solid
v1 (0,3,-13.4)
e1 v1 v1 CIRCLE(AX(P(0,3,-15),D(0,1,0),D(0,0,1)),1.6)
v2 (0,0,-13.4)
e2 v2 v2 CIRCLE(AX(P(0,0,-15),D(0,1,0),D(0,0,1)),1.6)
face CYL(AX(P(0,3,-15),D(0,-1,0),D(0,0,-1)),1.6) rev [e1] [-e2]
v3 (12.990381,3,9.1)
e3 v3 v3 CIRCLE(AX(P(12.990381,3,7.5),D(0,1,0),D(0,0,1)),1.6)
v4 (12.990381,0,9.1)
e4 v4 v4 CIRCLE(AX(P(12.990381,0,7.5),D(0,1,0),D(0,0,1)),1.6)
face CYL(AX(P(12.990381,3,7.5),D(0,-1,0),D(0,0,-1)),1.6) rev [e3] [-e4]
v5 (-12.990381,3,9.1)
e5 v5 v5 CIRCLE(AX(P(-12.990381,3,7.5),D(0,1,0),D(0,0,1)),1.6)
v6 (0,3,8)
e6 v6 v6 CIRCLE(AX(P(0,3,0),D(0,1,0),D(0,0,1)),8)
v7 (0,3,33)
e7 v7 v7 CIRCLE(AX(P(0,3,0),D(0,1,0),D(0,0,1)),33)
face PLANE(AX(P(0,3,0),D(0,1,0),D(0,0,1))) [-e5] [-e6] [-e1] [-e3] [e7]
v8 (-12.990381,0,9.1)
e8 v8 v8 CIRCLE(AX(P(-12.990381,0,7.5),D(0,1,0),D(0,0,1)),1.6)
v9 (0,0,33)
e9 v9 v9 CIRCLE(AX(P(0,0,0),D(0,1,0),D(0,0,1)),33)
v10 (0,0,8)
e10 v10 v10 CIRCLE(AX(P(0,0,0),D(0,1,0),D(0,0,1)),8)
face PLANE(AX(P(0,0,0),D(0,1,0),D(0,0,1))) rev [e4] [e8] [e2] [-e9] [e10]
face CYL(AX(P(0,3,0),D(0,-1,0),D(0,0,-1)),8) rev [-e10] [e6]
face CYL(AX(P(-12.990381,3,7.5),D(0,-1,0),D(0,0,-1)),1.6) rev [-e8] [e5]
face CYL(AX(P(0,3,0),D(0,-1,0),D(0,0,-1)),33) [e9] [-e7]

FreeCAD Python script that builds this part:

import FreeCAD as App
import Part
import Sketcher

V = App.Vector

doc = App.newDocument("Part")
body = doc.addObject("PartDesign::Body", "Body")

# Sketch on XZ plane
sketch1 = body.newObject("Sketcher::SketchObject", "Sketch")
sketch1.AttachmentSupport = (doc.getObject("XZ_Plane"), [""])
sketch1.MapMode = "FlatFace"
sketch1.addGeometry([
    Part.Circle(V(0, 0, 0), V(0, 0, 1), 33),  # 0
    Part.Circle(V(-13, 7.5, 0), V(0, 0, 1), 1.6),  # 1
    Part.Circle(V(13, 7.5, 0), V(0, 0, 1), 1.6),  # 2
    Part.Circle(V(0, 0, 0), V(0, 0, 1), 8),  # 3
    Part.Circle(V(0, -15, 0), V(0, 0, 1), 1.6),  # 4
], False)
sketch1.addConstraint([
    Sketcher.Constraint("Coincident", 0, 3, -1, 1),
    Sketcher.Constraint("Coincident", 3, 3, -1, 1),
    Sketcher.Constraint("Equal", 1, 2),
    Sketcher.Constraint("Equal", 2, 4),
    Sketcher.Constraint("Symmetric", 1, 3, 2, 3, -2),
    Sketcher.Constraint("PointOnObject", 4, 3, -2),
    Sketcher.Constraint("Diameter", 0, 66.0),
    Sketcher.Constraint("Diameter", 3, 16.0),
    Sketcher.Constraint("Diameter", 1, 3.2),
    Sketcher.Constraint("DistanceY", 4, 3, -1, 1, 15.0),
    Sketcher.Constraint("DistanceY", -1, 1, 1, 3, 7.5),
    Sketcher.Constraint("DistanceX", 1, 3, -1, 1, 12.990381),
])
pad1 = body.newObject("PartDesign::Pad", "Pad")
pad1.Profile = sketch1
pad1.Length = 3
pad1.Reversed = True

doc.recompute()
